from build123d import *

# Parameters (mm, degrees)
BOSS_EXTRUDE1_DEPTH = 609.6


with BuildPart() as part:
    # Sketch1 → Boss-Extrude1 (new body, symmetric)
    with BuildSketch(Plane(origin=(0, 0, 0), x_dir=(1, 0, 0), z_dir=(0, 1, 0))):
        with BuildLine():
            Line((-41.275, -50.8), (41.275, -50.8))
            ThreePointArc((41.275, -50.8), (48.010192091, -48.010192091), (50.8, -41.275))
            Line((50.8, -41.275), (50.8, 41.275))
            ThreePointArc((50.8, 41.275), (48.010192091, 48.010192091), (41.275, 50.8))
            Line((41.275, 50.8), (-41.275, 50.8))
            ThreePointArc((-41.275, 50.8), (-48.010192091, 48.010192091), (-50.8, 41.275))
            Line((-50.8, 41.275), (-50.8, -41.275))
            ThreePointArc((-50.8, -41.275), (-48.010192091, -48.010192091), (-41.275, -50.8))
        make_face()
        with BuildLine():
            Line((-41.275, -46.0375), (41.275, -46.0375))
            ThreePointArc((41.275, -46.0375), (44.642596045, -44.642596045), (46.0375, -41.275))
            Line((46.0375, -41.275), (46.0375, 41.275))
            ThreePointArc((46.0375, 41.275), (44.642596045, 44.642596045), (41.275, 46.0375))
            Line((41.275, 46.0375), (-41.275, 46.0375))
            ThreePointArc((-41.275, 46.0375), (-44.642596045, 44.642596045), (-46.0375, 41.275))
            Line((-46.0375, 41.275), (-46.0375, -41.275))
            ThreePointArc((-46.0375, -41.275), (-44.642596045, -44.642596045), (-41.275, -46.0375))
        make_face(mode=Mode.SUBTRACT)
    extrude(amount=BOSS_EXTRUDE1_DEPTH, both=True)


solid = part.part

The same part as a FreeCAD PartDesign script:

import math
import FreeCAD as App
import Part
import Sketcher
Q = App.Units.Quantity

doc = App.newDocument("Part")
body = doc.addObject("PartDesign::Body", "Body")

# Sketch on XZ plane
sketch1 = body.newObject("Sketcher::SketchObject", "Sketch")
sketch1.AttachmentSupport = (doc.getObject("XZ_Plane"), [""])
sketch1.MapMode = "FlatFace"
sketch1.addGeometry([
    Part.LineSegment(App.Vector(-41.3, 50.8, 0), App.Vector(41.3, 50.8, 0)),  # 0
    Part.ArcOfCircle(Part.Circle(App.Vector(41.3, 41.3, 0), App.Vector(0, 0, 1), 9.5), math.radians(0), math.radians(90)),  # 1
    Part.LineSegment(App.Vector(50.8, 41.3, 0), App.Vector(50.8, -41.3, 0)),  # 2
    Part.ArcOfCircle(Part.Circle(App.Vector(41.3, -41.3, 0), App.Vector(0, 0, 1), 9.5), math.radians(-90), math.radians(0)),  # 3
    Part.LineSegment(App.Vector(41.3, -50.8, 0), App.Vector(-41.3, -50.8, 0)),  # 4
    Part.ArcOfCircle(Part.Circle(App.Vector(-41.3, -41.3, 0), App.Vector(0, 0, 1), 9.5), math.radians(180), math.radians(270)),  # 5
    Part.LineSegment(App.Vector(-50.8, -41.3, 0), App.Vector(-50.8, 41.3, 0)),  # 6
    Part.ArcOfCircle(Part.Circle(App.Vector(-41.3, 41.3, 0), App.Vector(0, 0, 1), 9.5), math.radians(90), math.radians(180)),  # 7
    Part.LineSegment(App.Vector(41.3, 46, 0), App.Vector(-41.3, 46, 0)),  # 8
    Part.ArcOfCircle(Part.Circle(App.Vector(-41.3, 41.3, 0), App.Vector(0, 0, 1), 4.8), math.radians(90), math.radians(180)),  # 9
    Part.LineSegment(App.Vector(-46, 41.3, 0), App.Vector(-46, -41.3, 0)),  # 10
    Part.ArcOfCircle(Part.Circle(App.Vector(-41.3, -41.3, 0), App.Vector(0, 0, 1), 4.8), math.radians(-180), math.radians(-90)),  # 11
    Part.LineSegment(App.Vector(-41.3, -46, 0), App.Vector(41.3, -46, 0)),  # 12
    Part.ArcOfCircle(Part.Circle(App.Vector(41.3, -41.3, 0), App.Vector(0, 0, 1), 4.8), math.radians(-90), math.radians(0)),  # 13
    Part.LineSegment(App.Vector(46, -41.3, 0), App.Vector(46, 41.3, 0)),  # 14
    Part.ArcOfCircle(Part.Circle(App.Vector(41.3, 41.3, 0), App.Vector(0, 0, 1), 4.8), math.radians(0), math.radians(90)),  # 15
], False)
sketch1.addConstraint([
    Sketcher.Constraint("Tangent", 0, 2, 1, 2),
    Sketcher.Constraint("Tangent", 1, 1, 2, 1),
    Sketcher.Constraint("Tangent", 2, 2, 3, 2),
    Sketcher.Constraint("Tangent", 3, 1, 4, 1),
    Sketcher.Constraint("Tangent", 4, 2, 5, 2),
    Sketcher.Constraint("Tangent", 5, 1, 6, 1),
    Sketcher.Constraint("Tangent", 6, 2, 7, 2),
    Sketcher.Constraint("Tangent", 7, 1, 0, 1),
    Sketcher.Constraint("Tangent", 8, 2, 9, 1),
    Sketcher.Constraint("Tangent", 9, 2, 10, 1),
    Sketcher.Constraint("Tangent", 10, 2, 11, 1),
    Sketcher.Constraint("Tangent", 11, 2, 12, 1),
    Sketcher.Constraint("Tangent", 12, 2, 13, 1),
    Sketcher.Constraint("Tangent", 13, 2, 14, 1),
    Sketcher.Constraint("Tangent", 14, 2, 15, 1),
    Sketcher.Constraint("Tangent", 15, 2, 8, 1),
    Sketcher.Constraint("Horizontal", 0),
    Sketcher.Constraint("Vertical", 2),
    Sketcher.Constraint("Horizontal", 4),
    Sketcher.Constraint("Vertical", 6),
    Sketcher.Constraint("Horizontal", 8),
    Sketcher.Constraint("Vertical", 10),
    Sketcher.Constraint("Horizontal", 12),
    Sketcher.Constraint("Vertical", 14),
    Sketcher.Constraint("Coincident", 9, 3, 7, 3),
    Sketcher.Constraint("Coincident", 11, 3, 5, 3),
    Sketcher.Constraint("Coincident", 13, 3, 3, 3),
    Sketcher.Constraint("Equal", 1, 3),
    Sketcher.Constraint("Equal", 3, 5),
    Sketcher.Constraint("Equal", 5, 7),
    Sketcher.Constraint("Equal", 13, 15),
    Sketcher.Constraint("Symmetric", 1, 3, 5, 3, -1, 1),
    Sketcher.Constraint("Equal", 12, 2),
    Sketcher.Constraint("DistanceY", -1, 1, 0, 2, Q("2 in")),
    Sketcher.Constraint("Radius", 1, Q("0.375 in")),
    Sketcher.Constraint("Radius", 9, Q("0.1875 in")),
])
pad1 = body.newObject("PartDesign::Pad", "Pad")
pad1.Profile = sketch1
pad1.Length = Q("48 in")
pad1.Midplane = True

doc.recompute()
